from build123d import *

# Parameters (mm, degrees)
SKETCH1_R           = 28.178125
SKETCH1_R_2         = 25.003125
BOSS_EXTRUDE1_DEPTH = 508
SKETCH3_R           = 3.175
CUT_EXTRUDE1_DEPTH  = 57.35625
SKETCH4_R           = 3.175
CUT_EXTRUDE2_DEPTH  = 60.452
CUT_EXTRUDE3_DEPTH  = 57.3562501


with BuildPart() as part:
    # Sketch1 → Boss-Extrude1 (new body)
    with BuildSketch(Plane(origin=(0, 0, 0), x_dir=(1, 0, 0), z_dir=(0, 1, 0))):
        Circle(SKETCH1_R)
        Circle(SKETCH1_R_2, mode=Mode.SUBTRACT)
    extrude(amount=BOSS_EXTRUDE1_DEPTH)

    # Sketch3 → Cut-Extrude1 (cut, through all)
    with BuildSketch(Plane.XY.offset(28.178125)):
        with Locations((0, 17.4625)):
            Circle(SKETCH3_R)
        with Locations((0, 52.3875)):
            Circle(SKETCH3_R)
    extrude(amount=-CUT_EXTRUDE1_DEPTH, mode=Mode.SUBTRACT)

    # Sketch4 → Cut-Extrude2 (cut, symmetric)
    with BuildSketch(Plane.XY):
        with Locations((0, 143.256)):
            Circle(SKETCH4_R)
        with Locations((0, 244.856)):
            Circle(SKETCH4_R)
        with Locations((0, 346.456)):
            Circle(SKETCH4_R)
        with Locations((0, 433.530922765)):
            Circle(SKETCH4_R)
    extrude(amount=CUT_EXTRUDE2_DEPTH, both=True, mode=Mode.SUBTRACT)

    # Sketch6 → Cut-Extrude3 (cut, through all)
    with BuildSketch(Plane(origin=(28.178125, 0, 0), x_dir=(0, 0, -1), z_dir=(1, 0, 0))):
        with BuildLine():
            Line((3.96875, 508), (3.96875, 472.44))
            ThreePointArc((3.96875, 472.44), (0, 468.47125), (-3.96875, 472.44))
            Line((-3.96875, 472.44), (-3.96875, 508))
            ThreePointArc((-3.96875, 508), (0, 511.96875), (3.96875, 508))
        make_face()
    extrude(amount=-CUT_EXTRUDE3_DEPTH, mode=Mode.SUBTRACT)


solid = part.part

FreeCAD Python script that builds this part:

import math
import FreeCAD as App
import Part
import Sketcher
Q = App.Units.Quantity

doc = App.newDocument("Part")
body = doc.addObject("PartDesign::Body", "Body")

sketch1 = body.newObject("Sketcher::SketchObject", "Sketch")
sketch1.AttachmentSupport = (doc.getObject("XZ_Plane"), [""])
sketch1.MapMode = "FlatFace"
sketch1.addGeometry([
    Part.Circle(App.Vector(0, 0, 0), App.Vector(0, 0, 1), 28),
    Part.Circle(App.Vector(0, 0, 0), App.Vector(0, 0, 1), 25),
], False)
sketch1.addConstraint([
    Sketcher.Constraint("Coincident", 0, 3, -1, 1),
    Sketcher.Constraint("Coincident", 1, 3, -1, 1),
    Sketcher.Constraint("Diameter", 0, Q("2.21875 in")),
    Sketcher.Constraint("Diameter", 1, Q("1.96875 in")),
])
pad1 = body.newObject("PartDesign::Pad", "Pad")
pad1.Profile = sketch1
pad1.Length = Q("20 in")
pad1.Reversed = True

sketch2 = body.newObject("Sketcher::SketchObject", "Sketch001")
sketch2.AttachmentSupport = (doc.getObject("XY_Plane"), [""])
sketch2.MapMode = "FlatFace"
sketch2.AttachmentOffset = App.Placement(App.Vector(0, 0, 1.109375 * 25.4), App.Rotation())
sketch2.addGeometry([
    Part.Circle(App.Vector(0, 17.5, 0), App.Vector(0, 0, 1), 3.2),
    Part.Circle(App.Vector(0, 52.4, 0), App.Vector(0, 0, 1), 3.2),
], False)
sketch2.addConstraint([
    Sketcher.Constraint("Equal", 0, 1),
    Sketcher.Constraint("PointOnObject", 0, 3, -2),
    Sketcher.Constraint("PointOnObject", 1, 3, -2),
    Sketcher.Constraint("Diameter", 0, Q("0.25 in")),
    Sketcher.Constraint("DistanceY", -1, 1, 0, 3, Q("0.6875 in")),
    Sketcher.Constraint("DistanceY", -1, 1, 1, 3, Q("2.0625 in")),
])
pocket1 = body.newObject("PartDesign::Pocket", "Pocket")
pocket1.Profile = sketch2
pocket1.Type = "ThroughAll"

sketch3 = body.newObject("Sketcher::SketchObject", "Sketch002")
sketch3.AttachmentSupport = (doc.getObject("XY_Plane"), [""])
sketch3.MapMode = "FlatFace"
sketch3.addGeometry([
    Part.Circle(App.Vector(0, 143.3, 0), App.Vector(0, 0, 1), 3.2),
    Part.Circle(App.Vector(0, 244.9, 0), App.Vector(0, 0, 1), 3.2),
    Part.Circle(App.Vector(0, 346.5, 0), App.Vector(0, 0, 1), 3.2),
    Part.Circle(App.Vector(0, 433.5, 0), App.Vector(0, 0, 1), 3.2),
], False)
sketch3.addConstraint([
    Sketcher.Constraint("Equal", 0, 1),
    Sketcher.Constraint("Equal", 1, 2),
    Sketcher.Constraint("Equal", 2, 3),
    Sketcher.Constraint("PointOnObject", 0, 3, -2),
    Sketcher.Constraint("PointOnObject", 1, 3, -2),
    Sketcher.Constraint("PointOnObject", 2, 3, -2),
    Sketcher.Constraint("PointOnObject", 3, 3, -2),
    Sketcher.Constraint("Diameter", 0, Q("0.25 in")),
    Sketcher.Constraint("DistanceY", 0, 3, 1, 3, Q("4 in")),
    Sketcher.Constraint("DistanceY", 1, 3, 2, 3, Q("4 in")),
    Sketcher.Constraint("DistanceY", -1, 1, 0, 3, Q("5.64 in")),
    Sketcher.Constraint("DistanceY", -1, 1, 3, 3, Q("433.530923 mm")),
])
pocket2 = body.newObject("PartDesign::Pocket", "Pocket001")
pocket2.Profile = sketch3
pocket2.Length = Q("4.76 in")
pocket2.Midplane = True

sketch4 = body.newObject("Sketcher::SketchObject", "Sketch003")
sketch4.AttachmentSupport = (doc.getObject("YZ_Plane"), [""])
sketch4.MapMode = "FlatFace"
sketch4.AttachmentOffset = App.Placement(App.Vector(0, 0, 1.109375 * 25.4), App.Rotation())
sketch4.addGeometry([
    Part.LineSegment(App.Vector(472.4, -4, 0), App.Vector(508, -4, 0)),
    Part.ArcOfCircle(Part.Circle(App.Vector(508, 0, 0), App.Vector(0, 0, 1), 4), math.radians(-90), math.radians(90)),
    Part.LineSegment(App.Vector(508, 4, 0), App.Vector(472.4, 4, 0)),
    Part.ArcOfCircle(Part.Circle(App.Vector(472.4, 0, 0), App.Vector(0, 0, 1), 4), math.radians(90), math.radians(270)),
], False)
sketch4.addConstraint([
    Sketcher.Constraint("Tangent", 0, 2, 1, 1),
    Sketcher.Constraint("Tangent", 1, 2, 2, 1),
    Sketcher.Constraint("Tangent", 2, 2, 3, 1),
    Sketcher.Constraint("Tangent", 3, 2, 0, 1),
    Sketcher.Constraint("Horizontal", 0),
    Sketcher.Constraint("Horizontal", 2),
    Sketcher.Constraint("PointOnObject", 1, 3, -1),
    Sketcher.Constraint("DistanceX", 0, 1, 0, 2, Q("1.4 in")),
    Sketcher.Constraint("DistanceX", -1, 1, 1, 3, Q("20 in")),
    Sketcher.Constraint("Radius", 1, Q("0.15625 in")),
])
pocket3 = body.newObject("PartDesign::Pocket", "Pocket002")
pocket3.Profile = sketch4
pocket3.Type = "ThroughAll"

doc.recompute()
